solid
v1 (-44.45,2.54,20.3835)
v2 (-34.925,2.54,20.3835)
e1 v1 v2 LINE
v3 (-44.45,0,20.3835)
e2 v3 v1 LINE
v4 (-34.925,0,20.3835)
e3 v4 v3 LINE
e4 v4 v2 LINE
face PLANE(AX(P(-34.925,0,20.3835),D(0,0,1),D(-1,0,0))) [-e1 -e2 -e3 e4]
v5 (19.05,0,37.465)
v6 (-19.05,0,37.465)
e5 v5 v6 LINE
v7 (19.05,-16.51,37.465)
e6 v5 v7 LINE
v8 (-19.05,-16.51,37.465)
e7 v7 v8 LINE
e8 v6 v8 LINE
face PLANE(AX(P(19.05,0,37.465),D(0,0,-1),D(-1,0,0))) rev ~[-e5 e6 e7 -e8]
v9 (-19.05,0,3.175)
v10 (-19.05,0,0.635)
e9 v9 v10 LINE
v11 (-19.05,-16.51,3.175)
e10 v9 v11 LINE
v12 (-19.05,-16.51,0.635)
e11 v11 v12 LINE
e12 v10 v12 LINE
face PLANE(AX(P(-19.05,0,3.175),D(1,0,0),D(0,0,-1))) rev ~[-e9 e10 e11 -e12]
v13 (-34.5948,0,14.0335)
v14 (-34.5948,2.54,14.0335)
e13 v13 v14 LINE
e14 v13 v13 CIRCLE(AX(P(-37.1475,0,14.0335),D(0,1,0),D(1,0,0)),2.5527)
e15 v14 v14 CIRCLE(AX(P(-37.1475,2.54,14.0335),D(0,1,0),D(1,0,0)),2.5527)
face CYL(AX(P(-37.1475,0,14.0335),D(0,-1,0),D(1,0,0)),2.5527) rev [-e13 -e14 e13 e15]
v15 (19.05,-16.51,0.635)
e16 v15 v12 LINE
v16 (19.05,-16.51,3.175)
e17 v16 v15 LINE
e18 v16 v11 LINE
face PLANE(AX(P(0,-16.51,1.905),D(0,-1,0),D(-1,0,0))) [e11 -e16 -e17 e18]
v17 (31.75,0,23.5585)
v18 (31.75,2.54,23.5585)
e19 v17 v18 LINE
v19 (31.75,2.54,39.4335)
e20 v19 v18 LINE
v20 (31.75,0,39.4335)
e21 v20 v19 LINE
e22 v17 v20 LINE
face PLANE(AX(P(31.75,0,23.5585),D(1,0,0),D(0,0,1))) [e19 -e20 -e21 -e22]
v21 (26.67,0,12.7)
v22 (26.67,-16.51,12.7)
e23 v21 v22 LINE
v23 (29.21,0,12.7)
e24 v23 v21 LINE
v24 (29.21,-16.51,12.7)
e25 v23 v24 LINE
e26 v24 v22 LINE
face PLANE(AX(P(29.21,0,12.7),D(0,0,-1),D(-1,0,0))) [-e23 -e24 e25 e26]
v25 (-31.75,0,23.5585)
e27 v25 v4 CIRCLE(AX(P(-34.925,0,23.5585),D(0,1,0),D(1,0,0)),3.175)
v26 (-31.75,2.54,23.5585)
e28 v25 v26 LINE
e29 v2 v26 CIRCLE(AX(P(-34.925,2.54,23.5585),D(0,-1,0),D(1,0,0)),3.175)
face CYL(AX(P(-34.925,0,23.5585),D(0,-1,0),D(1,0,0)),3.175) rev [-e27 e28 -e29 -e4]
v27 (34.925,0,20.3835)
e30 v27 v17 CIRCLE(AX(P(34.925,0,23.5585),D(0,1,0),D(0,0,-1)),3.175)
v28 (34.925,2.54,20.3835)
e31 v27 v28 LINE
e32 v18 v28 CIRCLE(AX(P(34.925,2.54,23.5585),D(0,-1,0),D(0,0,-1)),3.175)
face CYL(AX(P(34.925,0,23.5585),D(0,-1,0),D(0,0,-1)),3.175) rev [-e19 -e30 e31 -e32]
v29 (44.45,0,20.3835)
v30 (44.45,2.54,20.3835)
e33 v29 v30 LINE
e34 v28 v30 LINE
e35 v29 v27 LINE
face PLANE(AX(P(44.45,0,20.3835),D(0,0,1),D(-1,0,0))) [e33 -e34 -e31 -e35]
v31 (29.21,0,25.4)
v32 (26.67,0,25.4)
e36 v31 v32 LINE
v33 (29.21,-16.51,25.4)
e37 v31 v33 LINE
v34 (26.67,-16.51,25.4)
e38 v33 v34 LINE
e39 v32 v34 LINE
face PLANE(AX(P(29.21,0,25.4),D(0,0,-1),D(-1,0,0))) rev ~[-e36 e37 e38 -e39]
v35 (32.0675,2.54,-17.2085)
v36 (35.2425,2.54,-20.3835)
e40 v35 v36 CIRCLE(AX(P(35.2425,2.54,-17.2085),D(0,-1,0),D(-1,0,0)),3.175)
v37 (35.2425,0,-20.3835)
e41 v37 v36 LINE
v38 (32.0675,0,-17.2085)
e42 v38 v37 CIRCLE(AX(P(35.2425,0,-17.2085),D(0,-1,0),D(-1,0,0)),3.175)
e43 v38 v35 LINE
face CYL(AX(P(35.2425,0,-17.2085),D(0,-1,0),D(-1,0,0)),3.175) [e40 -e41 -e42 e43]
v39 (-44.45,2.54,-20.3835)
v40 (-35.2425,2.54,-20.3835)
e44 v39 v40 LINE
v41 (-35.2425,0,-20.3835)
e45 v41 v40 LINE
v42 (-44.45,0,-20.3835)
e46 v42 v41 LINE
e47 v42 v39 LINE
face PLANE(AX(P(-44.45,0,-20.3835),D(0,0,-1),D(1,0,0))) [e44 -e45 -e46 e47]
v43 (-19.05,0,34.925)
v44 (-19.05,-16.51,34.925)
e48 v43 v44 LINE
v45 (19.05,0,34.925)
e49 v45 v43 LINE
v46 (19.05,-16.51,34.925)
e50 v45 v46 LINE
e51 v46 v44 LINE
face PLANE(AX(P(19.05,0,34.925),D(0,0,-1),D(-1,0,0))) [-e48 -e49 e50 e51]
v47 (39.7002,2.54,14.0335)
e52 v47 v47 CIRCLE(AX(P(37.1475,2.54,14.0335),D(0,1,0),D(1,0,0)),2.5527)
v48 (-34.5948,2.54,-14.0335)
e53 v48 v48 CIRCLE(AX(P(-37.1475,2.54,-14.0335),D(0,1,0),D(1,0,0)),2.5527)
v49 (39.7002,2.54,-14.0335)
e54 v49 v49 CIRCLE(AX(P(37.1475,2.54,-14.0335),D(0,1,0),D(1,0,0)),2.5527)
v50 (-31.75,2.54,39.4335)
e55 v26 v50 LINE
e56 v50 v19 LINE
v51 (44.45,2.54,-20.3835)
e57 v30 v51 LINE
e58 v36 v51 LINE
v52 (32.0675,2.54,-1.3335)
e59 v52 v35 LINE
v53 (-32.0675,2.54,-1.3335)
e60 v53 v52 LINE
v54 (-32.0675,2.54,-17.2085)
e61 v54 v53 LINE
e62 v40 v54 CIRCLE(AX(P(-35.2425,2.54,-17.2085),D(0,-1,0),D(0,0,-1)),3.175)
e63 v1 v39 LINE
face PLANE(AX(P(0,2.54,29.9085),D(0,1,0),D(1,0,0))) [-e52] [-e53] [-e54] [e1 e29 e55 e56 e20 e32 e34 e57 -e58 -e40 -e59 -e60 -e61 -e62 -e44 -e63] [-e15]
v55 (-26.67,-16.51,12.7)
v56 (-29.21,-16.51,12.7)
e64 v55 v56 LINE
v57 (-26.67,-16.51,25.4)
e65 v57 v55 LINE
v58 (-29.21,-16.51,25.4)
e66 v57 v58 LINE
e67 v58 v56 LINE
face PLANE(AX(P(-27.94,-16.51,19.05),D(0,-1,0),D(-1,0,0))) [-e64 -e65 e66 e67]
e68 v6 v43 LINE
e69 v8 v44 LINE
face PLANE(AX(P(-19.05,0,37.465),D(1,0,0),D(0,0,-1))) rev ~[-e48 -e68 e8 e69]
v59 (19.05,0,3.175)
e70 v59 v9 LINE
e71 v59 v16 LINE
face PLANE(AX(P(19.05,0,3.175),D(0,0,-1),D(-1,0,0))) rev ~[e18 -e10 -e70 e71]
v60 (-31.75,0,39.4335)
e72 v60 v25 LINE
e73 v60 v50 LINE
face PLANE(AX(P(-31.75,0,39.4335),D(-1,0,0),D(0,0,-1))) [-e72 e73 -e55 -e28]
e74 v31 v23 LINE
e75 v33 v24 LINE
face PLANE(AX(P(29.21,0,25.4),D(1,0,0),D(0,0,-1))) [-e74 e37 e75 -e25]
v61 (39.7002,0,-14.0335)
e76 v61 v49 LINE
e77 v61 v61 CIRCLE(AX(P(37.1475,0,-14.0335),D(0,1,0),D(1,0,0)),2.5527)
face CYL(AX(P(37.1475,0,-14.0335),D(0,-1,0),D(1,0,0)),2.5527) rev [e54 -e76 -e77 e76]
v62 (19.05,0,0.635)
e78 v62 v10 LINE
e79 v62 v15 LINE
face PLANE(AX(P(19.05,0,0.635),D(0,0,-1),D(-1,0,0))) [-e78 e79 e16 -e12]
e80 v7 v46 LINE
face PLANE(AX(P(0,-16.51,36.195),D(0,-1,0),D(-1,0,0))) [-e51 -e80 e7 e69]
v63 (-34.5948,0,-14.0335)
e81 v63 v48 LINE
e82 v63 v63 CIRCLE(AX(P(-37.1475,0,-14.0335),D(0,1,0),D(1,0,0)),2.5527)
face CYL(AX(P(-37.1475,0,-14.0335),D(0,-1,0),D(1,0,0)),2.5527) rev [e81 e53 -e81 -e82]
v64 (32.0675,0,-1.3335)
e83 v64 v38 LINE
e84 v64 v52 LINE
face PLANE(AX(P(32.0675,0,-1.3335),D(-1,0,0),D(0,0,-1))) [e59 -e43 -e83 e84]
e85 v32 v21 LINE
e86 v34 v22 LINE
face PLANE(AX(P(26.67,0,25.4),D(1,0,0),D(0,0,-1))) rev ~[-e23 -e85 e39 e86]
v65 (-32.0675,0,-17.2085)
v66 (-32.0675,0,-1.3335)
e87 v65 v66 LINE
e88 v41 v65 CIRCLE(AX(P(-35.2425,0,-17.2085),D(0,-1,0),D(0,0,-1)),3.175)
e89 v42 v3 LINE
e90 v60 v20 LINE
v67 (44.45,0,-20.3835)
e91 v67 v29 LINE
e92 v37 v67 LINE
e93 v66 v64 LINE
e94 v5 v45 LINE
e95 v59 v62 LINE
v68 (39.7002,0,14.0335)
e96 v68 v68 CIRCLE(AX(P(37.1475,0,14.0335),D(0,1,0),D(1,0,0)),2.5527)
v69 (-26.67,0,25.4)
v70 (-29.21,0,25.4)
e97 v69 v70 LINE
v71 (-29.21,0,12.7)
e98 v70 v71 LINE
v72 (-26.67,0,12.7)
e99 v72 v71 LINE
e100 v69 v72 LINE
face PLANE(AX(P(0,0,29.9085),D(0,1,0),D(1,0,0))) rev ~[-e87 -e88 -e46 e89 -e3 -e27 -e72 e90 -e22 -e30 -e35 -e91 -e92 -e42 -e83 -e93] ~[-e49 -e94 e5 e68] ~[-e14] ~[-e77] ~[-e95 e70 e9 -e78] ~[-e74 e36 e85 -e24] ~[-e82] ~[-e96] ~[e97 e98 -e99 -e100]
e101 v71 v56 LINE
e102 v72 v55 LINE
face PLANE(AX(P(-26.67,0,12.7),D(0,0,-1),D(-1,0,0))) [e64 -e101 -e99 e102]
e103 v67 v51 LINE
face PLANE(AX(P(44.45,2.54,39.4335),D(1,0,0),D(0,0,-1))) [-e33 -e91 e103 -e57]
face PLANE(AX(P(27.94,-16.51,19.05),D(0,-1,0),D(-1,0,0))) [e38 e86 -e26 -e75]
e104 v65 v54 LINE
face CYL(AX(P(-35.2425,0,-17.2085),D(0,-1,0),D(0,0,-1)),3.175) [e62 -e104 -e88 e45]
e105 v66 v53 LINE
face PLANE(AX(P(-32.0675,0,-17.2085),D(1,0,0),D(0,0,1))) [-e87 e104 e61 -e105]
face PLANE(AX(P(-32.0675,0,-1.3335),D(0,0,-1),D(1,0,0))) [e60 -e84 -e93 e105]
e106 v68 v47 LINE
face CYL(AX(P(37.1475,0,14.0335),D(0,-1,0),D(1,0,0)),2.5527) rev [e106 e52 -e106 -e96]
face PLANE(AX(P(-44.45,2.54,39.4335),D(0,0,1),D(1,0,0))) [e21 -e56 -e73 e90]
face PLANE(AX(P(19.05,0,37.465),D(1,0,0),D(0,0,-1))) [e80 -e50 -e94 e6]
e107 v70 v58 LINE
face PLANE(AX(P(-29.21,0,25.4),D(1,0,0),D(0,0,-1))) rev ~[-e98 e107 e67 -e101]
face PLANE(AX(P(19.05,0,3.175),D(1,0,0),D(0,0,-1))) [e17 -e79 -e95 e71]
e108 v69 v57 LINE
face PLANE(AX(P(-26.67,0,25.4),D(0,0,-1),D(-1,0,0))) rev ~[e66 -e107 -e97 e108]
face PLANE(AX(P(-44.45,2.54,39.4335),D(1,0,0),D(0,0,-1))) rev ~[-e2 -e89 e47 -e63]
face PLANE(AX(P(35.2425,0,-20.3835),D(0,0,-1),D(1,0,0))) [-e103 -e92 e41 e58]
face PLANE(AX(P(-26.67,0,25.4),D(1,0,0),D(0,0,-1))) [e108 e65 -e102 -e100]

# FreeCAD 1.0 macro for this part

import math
import FreeCAD as App
import Part
import Sketcher
Q = App.Units.Quantity


def add_polygon(sketch, points):
    """Adds a closed chain of lines whose ends are joined by coincident constraints."""
    first, n = sketch.GeometryCount, len(points)
    for a, b in zip(points, points[1:] + points[:1]):
        sketch.addGeometry(Part.LineSegment(App.Vector(*a, 0), App.Vector(*b, 0)), False)
    for i in range(n):
        sketch.addConstraint(Sketcher.Constraint("Coincident", first + i, 2, first + (i + 1) % n, 1))

doc = App.newDocument("Part")
body = doc.addObject("PartDesign::Body", "Body")

# Sketch on XZ plane
sketch1 = body.newObject("Sketcher::SketchObject", "Sketch")
sketch1.AttachmentSupport = (doc.getObject("XZ_Plane"), [""])
sketch1.MapMode = "FlatFace"
sketch1.addGeometry(Part.LineSegment(App.Vector(-44.5, 20.4, 0), App.Vector(44.5, 20.4, 0)), False)
sketch1.addGeometry(Part.LineSegment(App.Vector(44.5, 20.4, 0), App.Vector(44.5, -20.4, 0)), False)
sketch1.addGeometry(Part.LineSegment(App.Vector(44.5, -20.4, 0), App.Vector(35.2, -20.4, 0)), False)
sketch1.addGeometry(Part.ArcOfCircle(Part.Circle(App.Vector(35.2, -17.2, 0), App.Vector(0, 0, 1), 3.2), math.radians(-180), math.radians(-90)), False)
sketch1.addGeometry(Part.LineSegment(App.Vector(32.1, -17.2, 0), App.Vector(32.1, -1.3, 0)), False)
sketch1.addGeometry(Part.LineSegment(App.Vector(32.1, -1.3, 0), App.Vector(-32.1, -1.3, 0)), False)
sketch1.addGeometry(Part.LineSegment(App.Vector(-32.1, -1.3, 0), App.Vector(-32.1, -17.2, 0)), False)
sketch1.addGeometry(Part.ArcOfCircle(Part.Circle(App.Vector(-35.2, -17.2, 0), App.Vector(0, 0, 1), 3.2), math.radians(-90), math.radians(0)), False)
sketch1.addGeometry(Part.LineSegment(App.Vector(-35.2, -20.4, 0), App.Vector(-44.5, -20.4, 0)), False)
sketch1.addGeometry(Part.LineSegment(App.Vector(-44.5, -20.4, 0), App.Vector(-44.5, 20.4, 0)), False)
sketch1.addGeometry(Part.Circle(App.Vector(37.1, 14, 0), App.Vector(0, 0, 1), 2.6), False)
sketch1.addGeometry(Part.Circle(App.Vector(-37.1, 14, 0), App.Vector(0, 0, 1), 2.6), False)
sketch1.addGeometry(Part.Circle(App.Vector(37.1, -14, 0), App.Vector(0, 0, 1), 2.6), False)
sketch1.addGeometry(Part.Circle(App.Vector(-37.1, -14, 0), App.Vector(0, 0, 1), 2.6), False)
sketch1.addConstraint(Sketcher.Constraint("Coincident", 0, 2, 1, 1))
sketch1.addConstraint(Sketcher.Constraint("Coincident", 1, 2, 2, 1))
sketch1.addConstraint(Sketcher.Constraint("Tangent", 2, 2, 3, 2))
sketch1.addConstraint(Sketcher.Constraint("Tangent", 3, 1, 4, 1))
sketch1.addConstraint(Sketcher.Constraint("Coincident", 4, 2, 5, 1))
sketch1.addConstraint(Sketcher.Constraint("Coincident", 5, 2, 6, 1))
sketch1.addConstraint(Sketcher.Constraint("Tangent", 6, 2, 7, 2))
sketch1.addConstraint(Sketcher.Constraint("Tangent", 7, 1, 8, 1))
sketch1.addConstraint(Sketcher.Constraint("Coincident", 8, 2, 9, 1))
sketch1.addConstraint(Sketcher.Constraint("Coincident", 9, 2, 0, 1))
sketch1.addConstraint(Sketcher.Constraint("Horizontal", 0))
sketch1.addConstraint(Sketcher.Constraint("Vertical", 1))
sketch1.addConstraint(Sketcher.Constraint("Horizontal", 2))
sketch1.addConstraint(Sketcher.Constraint("Vertical", 4))
sketch1.addConstraint(Sketcher.Constraint("Horizontal", 5))
sketch1.addConstraint(Sketcher.Constraint("Vertical", 6))
sketch1.addConstraint(Sketcher.Constraint("Horizontal", 8))
sketch1.addConstraint(Sketcher.Constraint("Vertical", 9))
sketch1.addConstraint(Sketcher.Constraint("Equal", 3, 7))
sketch1.addConstraint(Sketcher.Constraint("Equal", 10, 11))
sketch1.addConstraint(Sketcher.Constraint("Equal", 11, 12))
sketch1.addConstraint(Sketcher.Constraint("Equal", 12, 13))
sketch1.addConstraint(Sketcher.Constraint("Symmetric", 11, 3, 12, 3, -1, 1))
sketch1.addConstraint(Sketcher.Constraint("Symmetric", 10, 3, 13, 3, -1, 1))
sketch1.addConstraint(Sketcher.Constraint("Symmetric", 0, 2, 8, 2, -1, 1))
sketch1.addConstraint(Sketcher.Constraint("Symmetric", 3, 3, 7, 3, -2))
sketch1.addConstraint(Sketcher.Constraint("Symmetric", 10, 3, 11, 3, -2))
sketch1.addConstraint(Sketcher.Constraint("Diameter", 10, Q("0.201 in")))
sketch1.addConstraint(Sketcher.Constraint("DistanceX", 0, 1, 0, 2, Q("3.5 in")))
sketch1.addConstraint(Sketcher.Constraint("Radius", 3, Q("0.125 in")))
sketch1.addConstraint(Sketcher.Constraint("DistanceX", 3, 1, 12, 3, Q("0.2 in")))
sketch1.addConstraint(Sketcher.Constraint("DistanceY", 12, 3, 4, 2, Q("0.5 in")))
sketch1.addConstraint(Sketcher.Constraint("DistanceX", 5, 2, 5, 1, Q("2.525 in")))
sketch1.addConstraint(Sketcher.Constraint("DistanceY", 1, 2, 1, 1, Q("1.605 in")))
sketch1.addConstraint(Sketcher.Constraint("DistanceY", 4, 1, 4, 2, Q("0.625 in")))
pad1 = body.newObject("PartDesign::Pad", "Pad")
pad1.Profile = sketch1
pad1.Length = Q("0.1 in")
pad1.Reversed = True

# Sketch on XZ plane
sketch2 = body.newObject("Sketcher::SketchObject", "Sketch001")
sketch2.AttachmentSupport = (doc.getObject("XZ_Plane"), [""])
sketch2.MapMode = "FlatFace"
sketch2.AttachmentOffset = App.Placement(App.Vector(0, 0, -0.1 * 25.4), App.Rotation())
add_polygon(sketch2, [(-44, 20), (-44, 39), (44, 39), (44, 20)])  # lines 0-3
sketch2.addConstraint(Sketcher.Constraint("Vertical", 0))
sketch2.addConstraint(Sketcher.Constraint("Horizontal", 1))
sketch2.addConstraint(Sketcher.Constraint("Vertical", 2))
sketch2.addConstraint(Sketcher.Constraint("Horizontal", 3))
sketch2.addConstraint(Sketcher.Constraint("DistanceX", 1, 1, 1, 2, Q("3.5 in")))
sketch2.addConstraint(Sketcher.Constraint("DistanceY", 0, 1, 0, 2, Q("0.75 in")))
sketch2.addConstraint(Sketcher.Constraint("DistanceX", 0, 2, -1, 1, Q("1.75 in")))
sketch2.addConstraint(Sketcher.Constraint("DistanceY", -1, 1, 0, 2, Q("1.5525 in")))
pad2 = body.newObject("PartDesign::Pad", "Pad001")
pad2.Profile = sketch2
pad2.Length = Q("0.1 in")

# Sketch on XZ plane
sketch3 = body.newObject("Sketcher::SketchObject", "Sketch002")
sketch3.AttachmentSupport = (doc.getObject("XZ_Plane"), [""])
sketch3.MapMode = "FlatFace"
add_polygon(sketch3, [(19.1, 34.9), (19.1, 37.5), (-19.1, 37.5), (-19.1, 34.9)])  # lines 0-3
add_polygon(sketch3, [(19.1, 0.6), (19.1, 3.2), (-19.1, 3.2), (-19.1, 0.6)])  # lines 4-7
add_polygon(sketch3, [(-26.7, 12.7), (-26.7, 25.4), (-29.2, 25.4), (-29.2, 12.7)])  # lines 8-11
add_polygon(sketch3, [(29.2, 12.7), (29.2, 25.4), (26.7, 25.4), (26.7, 12.7)])  # lines 12-15
sketch3.addConstraint(Sketcher.Constraint("Vertical", 0))
sketch3.addConstraint(Sketcher.Constraint("Horizontal", 1))
sketch3.addConstraint(Sketcher.Constraint("Vertical", 2))
sketch3.addConstraint(Sketcher.Constraint("Horizontal", 3))
sketch3.addConstraint(Sketcher.Constraint("Vertical", 4))
sketch3.addConstraint(Sketcher.Constraint("Horizontal", 5))
sketch3.addConstraint(Sketcher.Constraint("Vertical", 6))
sketch3.addConstraint(Sketcher.Constraint("Horizontal", 7))
sketch3.addConstraint(Sketcher.Constraint("Vertical", 8))
sketch3.addConstraint(Sketcher.Constraint("Horizontal", 9))
sketch3.addConstraint(Sketcher.Constraint("Vertical", 10))
sketch3.addConstraint(Sketcher.Constraint("Horizontal", 11))
sketch3.addConstraint(Sketcher.Constraint("Vertical", 12))
sketch3.addConstraint(Sketcher.Constraint("Horizontal", 13))
sketch3.addConstraint(Sketcher.Constraint("Vertical", 14))
sketch3.addConstraint(Sketcher.Constraint("Horizontal", 15))
sketch3.addConstraint(Sketcher.Constraint("Symmetric", 9, 2, 12, 2, -2))
sketch3.addConstraint(Sketcher.Constraint("Symmetric", 11, 2, 14, 2, -2))
sketch3.addConstraint(Sketcher.Constraint("Vertical", 3, 2, 4, 2))
sketch3.addConstraint(Sketcher.Constraint("Vertical", 2, 2, 5, 2))
sketch3.addConstraint(Sketcher.Constraint("Equal", 15, 0))
sketch3.addConstraint(Sketcher.Constraint("Equal", 2, 4))
sketch3.addConstraint(Sketcher.Constraint("DistanceX", 1, 2, 1, 1, Q("1.5 in")))
sketch3.addConstraint(Sketcher.Constraint("DistanceX", 9, 2, 9, 1, Q("0.1 in")))
sketch3.addConstraint(Sketcher.Constraint("DistanceY", 8, 1, 8, 2, Q("0.5 in")))
sketch3.addConstraint(Sketcher.Constraint("DistanceY", -1, 1, 8, 2, Q("1 in")))
sketch3.addConstraint(Sketcher.Constraint("DistanceX", 8, 2, 2, 2, Q("0.3 in")))
sketch3.addConstraint(Sketcher.Constraint("DistanceX", 3, 2, 12, 2, Q("0.4 in")))
sketch3.addConstraint(Sketcher.Constraint("DistanceY", 4, 2, 3, 2, Q("1.25 in")))
sketch3.addConstraint(Sketcher.Constraint("DistanceY", -1, 1, 0, 2, Q("1.475 in")))
pad3 = body.newObject("PartDesign::Pad", "Pad002")
pad3.Profile = sketch3
pad3.Length = Q("0.65 in")

# Sketch on XZ plane
sketch4 = body.newObject("Sketcher::SketchObject", "Sketch003")
sketch4.AttachmentSupport = (doc.getObject("XZ_Plane"), [""])
sketch4.MapMode = "FlatFace"
sketch4.addGeometry(Part.LineSegment(App.Vector(-31.8, 39.4, 0), App.Vector(-44.5, 39.4, 0)), False)
sketch4.addGeometry(Part.LineSegment(App.Vector(-44.5, 39.4, 0), App.Vector(-44.5, 20.4, 0)), False)
sketch4.addGeometry(Part.LineSegment(App.Vector(-44.5, 20.4, 0), App.Vector(-34.9, 20.4, 0)), False)
sketch4.addGeometry(Part.ArcOfCircle(Part.Circle(App.Vector(-34.9, 23.6, 0), App.Vector(0, 0, 1), 3.2), math.radians(-90), math.radians(0)), False)
sketch4.addGeometry(Part.LineSegment(App.Vector(-31.8, 23.6, 0), App.Vector(-31.8, 39.4, 0)), False)
sketch4.addGeometry(Part.LineSegment(App.Vector(34.9, 20.4, 0), App.Vector(44.5, 20.4, 0)), False)
sketch4.addGeometry(Part.LineSegment(App.Vector(44.5, 20.4, 0), App.Vector(44.5, 39.4, 0)), False)
sketch4.addGeometry(Part.LineSegment(App.Vector(44.5, 39.4, 0), App.Vector(31.8, 39.4, 0)), False)
sketch4.addGeometry(Part.LineSegment(App.Vector(31.8, 39.4, 0), App.Vector(31.8, 23.6, 0)), False)
sketch4.addGeometry(Part.ArcOfCircle(Part.Circle(App.Vector(34.9, 23.6, 0), App.Vector(0, 0, 1), 3.2), math.radians(-180), math.radians(-90)), False)
sketch4.addConstraint(Sketcher.Constraint("Coincident", 0, 2, 1, 1))
sketch4.addConstraint(Sketcher.Constraint("Coincident", 1, 2, 2, 1))
sketch4.addConstraint(Sketcher.Constraint("Tangent", 2, 2, 3, 1))
sketch4.addConstraint(Sketcher.Constraint("Tangent", 3, 2, 4, 1))
sketch4.addConstraint(Sketcher.Constraint("Coincident", 4, 2, 0, 1))
sketch4.addConstraint(Sketcher.Constraint("Coincident", 5, 2, 6, 1))
sketch4.addConstraint(Sketcher.Constraint("Coincident", 6, 2, 7, 1))
sketch4.addConstraint(Sketcher.Constraint("Coincident", 7, 2, 8, 1))
sketch4.addConstraint(Sketcher.Constraint("Tangent", 8, 2, 9, 1))
sketch4.addConstraint(Sketcher.Constraint("Tangent", 9, 2, 5, 1))
sketch4.addConstraint(Sketcher.Constraint("Horizontal", 0))
sketch4.addConstraint(Sketcher.Constraint("Vertical", 1))
sketch4.addConstraint(Sketcher.Constraint("Horizontal", 2))
sketch4.addConstraint(Sketcher.Constraint("Vertical", 4))
sketch4.addConstraint(Sketcher.Constraint("Horizontal", 5))
sketch4.addConstraint(Sketcher.Constraint("Vertical", 6))
sketch4.addConstraint(Sketcher.Constraint("Horizontal", 7))
sketch4.addConstraint(Sketcher.Constraint("Vertical", 8))
sketch4.addConstraint(Sketcher.Constraint("Equal", 3, 9))
sketch4.addConstraint(Sketcher.Constraint("Symmetric", 3, 3, 9, 3, -2))
sketch4.addConstraint(Sketcher.Constraint("Symmetric", 0, 2, 6, 2, -2))
sketch4.addConstraint(Sketcher.Constraint("DistanceX", 0, 2, 0, 1, Q("0.5 in")))
sketch4.addConstraint(Sketcher.Constraint("Radius", 3, Q("0.125 in")))
sketch4.addConstraint(Sketcher.Constraint("DistanceX", 3, 2, 5, 2, Q("3 in")))
sketch4.addConstraint(Sketcher.Constraint("DistanceY", 1, 2, 1, 1, Q("0.75 in")))
sketch4.addConstraint(Sketcher.Constraint("DistanceY", -1, 1, 3, 3, Q("0.9275 in")))
pocket1 = body.newObject("PartDesign::Pocket", "Pocket")
pocket1.Profile = sketch4
pocket1.Type = "ThroughAll"

doc.recompute()
